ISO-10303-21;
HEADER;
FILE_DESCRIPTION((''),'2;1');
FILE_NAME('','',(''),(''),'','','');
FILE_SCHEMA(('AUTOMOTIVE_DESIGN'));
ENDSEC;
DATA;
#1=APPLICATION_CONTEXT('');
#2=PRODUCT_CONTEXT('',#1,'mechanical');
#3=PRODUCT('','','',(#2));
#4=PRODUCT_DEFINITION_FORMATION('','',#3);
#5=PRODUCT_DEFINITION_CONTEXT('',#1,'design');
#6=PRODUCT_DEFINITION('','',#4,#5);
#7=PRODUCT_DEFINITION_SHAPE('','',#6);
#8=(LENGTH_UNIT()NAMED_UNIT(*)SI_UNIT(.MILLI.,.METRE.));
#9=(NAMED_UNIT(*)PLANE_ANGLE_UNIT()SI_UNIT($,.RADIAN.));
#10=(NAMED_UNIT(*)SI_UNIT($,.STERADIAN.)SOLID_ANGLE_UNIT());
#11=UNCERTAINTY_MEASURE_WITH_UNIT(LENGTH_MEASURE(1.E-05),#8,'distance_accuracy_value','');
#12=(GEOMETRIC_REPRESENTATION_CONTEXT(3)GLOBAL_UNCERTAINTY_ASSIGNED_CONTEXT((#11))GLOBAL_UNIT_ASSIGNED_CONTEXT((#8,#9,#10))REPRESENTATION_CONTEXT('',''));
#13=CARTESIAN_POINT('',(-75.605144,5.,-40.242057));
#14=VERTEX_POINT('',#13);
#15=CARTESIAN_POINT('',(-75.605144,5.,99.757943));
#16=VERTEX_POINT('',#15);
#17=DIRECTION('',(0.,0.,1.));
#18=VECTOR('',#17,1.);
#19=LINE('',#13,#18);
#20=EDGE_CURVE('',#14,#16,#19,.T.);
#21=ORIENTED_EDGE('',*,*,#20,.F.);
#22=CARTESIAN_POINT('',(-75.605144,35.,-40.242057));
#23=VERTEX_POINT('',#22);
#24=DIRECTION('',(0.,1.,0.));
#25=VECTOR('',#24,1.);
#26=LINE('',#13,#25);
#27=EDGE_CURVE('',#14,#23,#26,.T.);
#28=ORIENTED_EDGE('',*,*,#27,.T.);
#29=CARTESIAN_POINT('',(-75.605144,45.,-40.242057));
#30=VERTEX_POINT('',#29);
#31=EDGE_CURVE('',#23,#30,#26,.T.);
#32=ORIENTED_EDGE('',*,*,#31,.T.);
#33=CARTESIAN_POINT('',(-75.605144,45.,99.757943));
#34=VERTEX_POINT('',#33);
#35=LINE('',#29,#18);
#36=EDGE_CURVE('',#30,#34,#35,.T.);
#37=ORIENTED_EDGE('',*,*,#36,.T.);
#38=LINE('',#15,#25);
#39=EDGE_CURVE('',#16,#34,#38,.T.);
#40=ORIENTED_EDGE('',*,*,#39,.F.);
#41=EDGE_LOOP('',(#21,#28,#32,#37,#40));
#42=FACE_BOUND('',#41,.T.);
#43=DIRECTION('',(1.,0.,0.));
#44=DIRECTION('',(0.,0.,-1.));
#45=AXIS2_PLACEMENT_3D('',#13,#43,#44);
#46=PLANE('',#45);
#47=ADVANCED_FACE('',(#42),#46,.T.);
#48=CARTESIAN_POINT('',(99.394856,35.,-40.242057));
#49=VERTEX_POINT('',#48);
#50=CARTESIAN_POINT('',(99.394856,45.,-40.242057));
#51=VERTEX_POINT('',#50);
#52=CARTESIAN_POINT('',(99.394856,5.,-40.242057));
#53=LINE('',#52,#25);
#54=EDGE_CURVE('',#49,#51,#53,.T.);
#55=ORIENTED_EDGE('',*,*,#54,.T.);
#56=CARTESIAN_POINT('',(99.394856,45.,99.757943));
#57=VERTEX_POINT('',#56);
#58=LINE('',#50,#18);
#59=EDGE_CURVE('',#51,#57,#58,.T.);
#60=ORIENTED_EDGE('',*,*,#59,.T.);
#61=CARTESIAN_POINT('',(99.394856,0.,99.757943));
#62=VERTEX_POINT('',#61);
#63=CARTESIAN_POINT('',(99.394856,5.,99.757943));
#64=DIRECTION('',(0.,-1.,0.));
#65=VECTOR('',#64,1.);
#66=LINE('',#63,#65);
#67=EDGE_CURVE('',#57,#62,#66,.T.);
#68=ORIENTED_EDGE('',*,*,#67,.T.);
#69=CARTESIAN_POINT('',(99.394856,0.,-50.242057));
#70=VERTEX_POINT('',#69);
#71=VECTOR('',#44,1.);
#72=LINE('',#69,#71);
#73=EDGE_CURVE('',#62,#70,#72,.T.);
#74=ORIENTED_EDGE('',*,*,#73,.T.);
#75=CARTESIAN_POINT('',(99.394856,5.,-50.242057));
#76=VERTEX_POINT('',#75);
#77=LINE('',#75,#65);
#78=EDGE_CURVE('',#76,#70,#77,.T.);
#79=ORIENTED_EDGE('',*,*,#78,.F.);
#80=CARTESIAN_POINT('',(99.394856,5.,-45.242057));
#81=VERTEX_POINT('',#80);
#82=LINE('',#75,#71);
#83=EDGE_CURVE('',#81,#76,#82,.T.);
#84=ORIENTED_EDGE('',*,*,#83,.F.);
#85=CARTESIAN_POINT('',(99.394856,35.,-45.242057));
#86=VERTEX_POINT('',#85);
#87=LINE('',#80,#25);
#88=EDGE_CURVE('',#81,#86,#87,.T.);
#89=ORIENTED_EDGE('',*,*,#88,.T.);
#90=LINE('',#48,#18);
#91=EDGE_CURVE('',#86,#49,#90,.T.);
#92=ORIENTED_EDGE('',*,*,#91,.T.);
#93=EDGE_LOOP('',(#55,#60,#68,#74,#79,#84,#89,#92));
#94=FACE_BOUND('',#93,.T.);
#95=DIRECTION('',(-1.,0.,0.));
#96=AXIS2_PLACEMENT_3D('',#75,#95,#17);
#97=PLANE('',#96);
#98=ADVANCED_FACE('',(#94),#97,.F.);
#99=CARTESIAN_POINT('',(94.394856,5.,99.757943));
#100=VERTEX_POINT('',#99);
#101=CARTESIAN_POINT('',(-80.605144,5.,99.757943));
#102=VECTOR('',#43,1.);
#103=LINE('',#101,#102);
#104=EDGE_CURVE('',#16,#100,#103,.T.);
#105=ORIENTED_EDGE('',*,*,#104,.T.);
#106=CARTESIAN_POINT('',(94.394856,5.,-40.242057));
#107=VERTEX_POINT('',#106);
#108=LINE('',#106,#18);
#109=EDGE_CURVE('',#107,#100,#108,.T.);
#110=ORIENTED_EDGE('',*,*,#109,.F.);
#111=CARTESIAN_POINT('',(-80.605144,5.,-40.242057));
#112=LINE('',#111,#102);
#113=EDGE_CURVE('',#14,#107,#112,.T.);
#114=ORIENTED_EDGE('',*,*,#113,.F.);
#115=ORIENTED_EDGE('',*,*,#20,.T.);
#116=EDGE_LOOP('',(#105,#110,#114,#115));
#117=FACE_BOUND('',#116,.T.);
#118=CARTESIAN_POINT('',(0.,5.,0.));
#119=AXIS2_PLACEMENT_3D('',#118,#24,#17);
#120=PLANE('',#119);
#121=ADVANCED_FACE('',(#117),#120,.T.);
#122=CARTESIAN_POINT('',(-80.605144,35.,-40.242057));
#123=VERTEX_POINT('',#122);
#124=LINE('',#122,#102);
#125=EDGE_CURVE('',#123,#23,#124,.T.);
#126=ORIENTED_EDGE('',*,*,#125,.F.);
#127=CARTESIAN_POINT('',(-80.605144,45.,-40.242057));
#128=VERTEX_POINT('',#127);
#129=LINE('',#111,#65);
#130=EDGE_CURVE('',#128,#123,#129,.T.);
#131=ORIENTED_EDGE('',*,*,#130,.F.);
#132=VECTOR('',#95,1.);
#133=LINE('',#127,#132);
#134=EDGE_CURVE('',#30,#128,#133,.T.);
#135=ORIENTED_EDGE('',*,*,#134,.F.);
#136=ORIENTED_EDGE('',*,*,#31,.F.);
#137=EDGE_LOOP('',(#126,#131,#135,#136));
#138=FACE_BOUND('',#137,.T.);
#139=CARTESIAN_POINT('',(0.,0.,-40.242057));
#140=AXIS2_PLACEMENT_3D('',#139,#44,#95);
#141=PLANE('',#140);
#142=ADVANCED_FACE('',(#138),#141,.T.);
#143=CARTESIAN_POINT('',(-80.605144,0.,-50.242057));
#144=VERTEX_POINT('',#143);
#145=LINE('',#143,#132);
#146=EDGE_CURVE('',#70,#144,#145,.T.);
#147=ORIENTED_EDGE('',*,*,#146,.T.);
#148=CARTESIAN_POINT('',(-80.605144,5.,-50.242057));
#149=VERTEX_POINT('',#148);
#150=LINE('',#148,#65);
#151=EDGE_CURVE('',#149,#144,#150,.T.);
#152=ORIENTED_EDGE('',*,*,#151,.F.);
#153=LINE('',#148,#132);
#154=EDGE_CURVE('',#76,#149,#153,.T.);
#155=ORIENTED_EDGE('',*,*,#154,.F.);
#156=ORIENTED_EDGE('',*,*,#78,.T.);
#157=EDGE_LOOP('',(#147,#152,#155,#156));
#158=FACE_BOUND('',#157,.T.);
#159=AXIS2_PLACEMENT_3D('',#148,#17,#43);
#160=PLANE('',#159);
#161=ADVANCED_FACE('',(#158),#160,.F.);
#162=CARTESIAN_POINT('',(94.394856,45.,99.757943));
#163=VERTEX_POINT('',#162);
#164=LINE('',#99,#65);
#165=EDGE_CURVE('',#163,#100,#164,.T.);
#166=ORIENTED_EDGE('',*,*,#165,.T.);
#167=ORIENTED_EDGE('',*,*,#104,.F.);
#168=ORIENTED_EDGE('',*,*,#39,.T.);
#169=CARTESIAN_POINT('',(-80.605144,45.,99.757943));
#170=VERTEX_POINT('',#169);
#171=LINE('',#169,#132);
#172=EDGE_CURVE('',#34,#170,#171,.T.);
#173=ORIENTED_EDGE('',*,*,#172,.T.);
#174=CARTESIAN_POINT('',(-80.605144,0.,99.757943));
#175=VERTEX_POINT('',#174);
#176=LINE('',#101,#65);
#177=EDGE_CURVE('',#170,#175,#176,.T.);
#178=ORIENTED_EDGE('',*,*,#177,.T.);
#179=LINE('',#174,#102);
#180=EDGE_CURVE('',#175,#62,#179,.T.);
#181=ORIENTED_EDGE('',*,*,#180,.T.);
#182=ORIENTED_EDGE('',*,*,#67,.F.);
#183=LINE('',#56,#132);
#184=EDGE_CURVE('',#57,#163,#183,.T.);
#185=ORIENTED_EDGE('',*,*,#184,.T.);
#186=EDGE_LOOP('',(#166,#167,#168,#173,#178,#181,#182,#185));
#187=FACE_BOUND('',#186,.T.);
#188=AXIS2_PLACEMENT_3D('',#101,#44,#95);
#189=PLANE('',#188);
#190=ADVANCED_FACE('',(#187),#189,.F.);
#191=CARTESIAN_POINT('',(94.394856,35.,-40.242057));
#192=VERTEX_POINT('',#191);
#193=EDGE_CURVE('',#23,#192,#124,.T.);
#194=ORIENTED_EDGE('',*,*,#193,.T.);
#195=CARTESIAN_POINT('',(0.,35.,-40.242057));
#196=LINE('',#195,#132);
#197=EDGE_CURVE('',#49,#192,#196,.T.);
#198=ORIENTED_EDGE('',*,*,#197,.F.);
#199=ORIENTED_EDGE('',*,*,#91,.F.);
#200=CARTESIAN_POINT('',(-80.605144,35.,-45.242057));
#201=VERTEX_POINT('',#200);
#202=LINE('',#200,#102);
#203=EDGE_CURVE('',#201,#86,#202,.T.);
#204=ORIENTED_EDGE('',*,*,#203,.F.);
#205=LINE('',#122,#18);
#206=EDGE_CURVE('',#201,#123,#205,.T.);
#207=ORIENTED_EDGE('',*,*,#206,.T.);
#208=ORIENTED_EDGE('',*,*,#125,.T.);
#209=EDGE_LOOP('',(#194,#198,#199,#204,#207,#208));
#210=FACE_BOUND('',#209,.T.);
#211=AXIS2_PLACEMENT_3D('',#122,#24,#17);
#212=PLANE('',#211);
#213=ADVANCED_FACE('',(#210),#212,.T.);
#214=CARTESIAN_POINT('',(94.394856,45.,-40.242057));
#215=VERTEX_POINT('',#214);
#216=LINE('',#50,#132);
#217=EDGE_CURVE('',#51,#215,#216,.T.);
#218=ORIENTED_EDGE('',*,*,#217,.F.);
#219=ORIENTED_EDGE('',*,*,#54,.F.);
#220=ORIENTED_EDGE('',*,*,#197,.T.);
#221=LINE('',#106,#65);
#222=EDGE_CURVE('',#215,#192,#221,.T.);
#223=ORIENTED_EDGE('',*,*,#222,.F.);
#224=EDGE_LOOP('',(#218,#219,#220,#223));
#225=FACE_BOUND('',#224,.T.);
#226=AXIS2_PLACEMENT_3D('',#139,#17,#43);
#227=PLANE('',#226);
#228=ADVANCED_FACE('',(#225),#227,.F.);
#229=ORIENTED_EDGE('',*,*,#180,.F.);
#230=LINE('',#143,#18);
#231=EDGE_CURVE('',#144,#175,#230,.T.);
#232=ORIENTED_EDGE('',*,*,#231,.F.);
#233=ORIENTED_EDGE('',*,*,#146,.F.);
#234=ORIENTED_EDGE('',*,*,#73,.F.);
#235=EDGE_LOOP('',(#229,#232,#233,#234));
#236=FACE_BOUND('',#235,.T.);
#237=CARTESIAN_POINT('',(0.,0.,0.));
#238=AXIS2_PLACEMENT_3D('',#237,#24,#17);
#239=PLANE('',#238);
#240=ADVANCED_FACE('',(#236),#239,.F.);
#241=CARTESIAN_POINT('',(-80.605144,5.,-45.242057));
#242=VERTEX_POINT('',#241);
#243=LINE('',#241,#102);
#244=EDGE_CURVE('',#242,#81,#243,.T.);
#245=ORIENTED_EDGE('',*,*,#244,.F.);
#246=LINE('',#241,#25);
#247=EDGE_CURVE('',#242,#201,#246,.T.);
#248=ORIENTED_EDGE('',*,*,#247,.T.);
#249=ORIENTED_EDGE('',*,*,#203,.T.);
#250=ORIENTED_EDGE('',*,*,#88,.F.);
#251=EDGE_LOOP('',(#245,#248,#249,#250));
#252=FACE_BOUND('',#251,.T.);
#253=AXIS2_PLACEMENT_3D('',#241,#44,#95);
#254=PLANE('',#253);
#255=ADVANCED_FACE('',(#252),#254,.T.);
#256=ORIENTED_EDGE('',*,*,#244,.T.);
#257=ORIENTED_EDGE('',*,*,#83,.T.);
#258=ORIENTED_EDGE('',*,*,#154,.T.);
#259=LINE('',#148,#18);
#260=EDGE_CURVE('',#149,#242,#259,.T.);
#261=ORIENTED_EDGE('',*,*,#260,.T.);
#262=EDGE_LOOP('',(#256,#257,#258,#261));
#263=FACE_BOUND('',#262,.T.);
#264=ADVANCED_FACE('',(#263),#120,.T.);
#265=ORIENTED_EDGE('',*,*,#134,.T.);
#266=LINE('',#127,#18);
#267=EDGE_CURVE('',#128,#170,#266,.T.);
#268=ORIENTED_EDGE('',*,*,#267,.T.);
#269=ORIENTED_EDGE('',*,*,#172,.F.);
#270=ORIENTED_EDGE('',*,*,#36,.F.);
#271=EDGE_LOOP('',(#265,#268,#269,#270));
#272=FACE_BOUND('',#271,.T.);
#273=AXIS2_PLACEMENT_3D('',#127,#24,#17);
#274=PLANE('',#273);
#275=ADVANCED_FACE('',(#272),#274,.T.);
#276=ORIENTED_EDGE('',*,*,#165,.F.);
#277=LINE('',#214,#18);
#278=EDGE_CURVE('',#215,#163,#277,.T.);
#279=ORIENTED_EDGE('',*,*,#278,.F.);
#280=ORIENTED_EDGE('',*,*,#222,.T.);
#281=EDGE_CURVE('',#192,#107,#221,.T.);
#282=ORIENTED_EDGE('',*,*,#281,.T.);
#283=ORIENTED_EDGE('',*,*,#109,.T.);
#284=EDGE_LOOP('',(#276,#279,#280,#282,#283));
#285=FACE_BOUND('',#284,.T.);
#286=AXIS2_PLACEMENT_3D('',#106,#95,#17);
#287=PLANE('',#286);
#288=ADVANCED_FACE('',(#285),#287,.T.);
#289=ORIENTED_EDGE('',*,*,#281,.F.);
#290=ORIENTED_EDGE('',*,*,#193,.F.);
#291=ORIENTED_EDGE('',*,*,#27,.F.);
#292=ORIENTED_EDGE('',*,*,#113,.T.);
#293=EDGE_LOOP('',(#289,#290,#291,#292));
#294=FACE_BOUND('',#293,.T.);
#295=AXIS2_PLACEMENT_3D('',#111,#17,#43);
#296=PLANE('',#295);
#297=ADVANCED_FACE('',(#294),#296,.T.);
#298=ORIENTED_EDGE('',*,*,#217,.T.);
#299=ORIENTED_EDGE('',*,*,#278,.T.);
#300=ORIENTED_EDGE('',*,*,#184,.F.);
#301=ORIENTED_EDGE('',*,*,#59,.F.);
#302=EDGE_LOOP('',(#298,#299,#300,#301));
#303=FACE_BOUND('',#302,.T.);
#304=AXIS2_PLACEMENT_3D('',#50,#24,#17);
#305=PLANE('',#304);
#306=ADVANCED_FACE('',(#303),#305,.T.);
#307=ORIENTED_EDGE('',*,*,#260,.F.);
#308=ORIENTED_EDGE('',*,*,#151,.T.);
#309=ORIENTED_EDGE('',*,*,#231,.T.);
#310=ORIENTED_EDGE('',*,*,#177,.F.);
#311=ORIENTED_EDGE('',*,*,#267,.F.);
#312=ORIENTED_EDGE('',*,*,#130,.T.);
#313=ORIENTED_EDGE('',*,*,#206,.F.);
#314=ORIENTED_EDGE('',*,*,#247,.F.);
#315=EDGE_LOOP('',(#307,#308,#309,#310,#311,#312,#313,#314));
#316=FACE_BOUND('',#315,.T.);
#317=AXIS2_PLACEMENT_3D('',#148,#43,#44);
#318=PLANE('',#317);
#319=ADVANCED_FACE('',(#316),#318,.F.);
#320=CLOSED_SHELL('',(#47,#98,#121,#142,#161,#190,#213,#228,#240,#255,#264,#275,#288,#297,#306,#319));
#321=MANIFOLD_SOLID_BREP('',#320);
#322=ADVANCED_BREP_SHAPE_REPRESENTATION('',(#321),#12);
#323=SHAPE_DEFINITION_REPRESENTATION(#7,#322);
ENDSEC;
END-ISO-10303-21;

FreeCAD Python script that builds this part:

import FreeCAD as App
import Part
import Sketcher
Q = App.Units.Quantity


def add_polygon(sketch, points):
    """Adds a closed chain of lines whose ends are joined by coincident constraints."""
    first, n = sketch.GeometryCount, len(points)
    for a, b in zip(points, points[1:] + points[:1]):
        sketch.addGeometry(Part.LineSegment(App.Vector(*a, 0), App.Vector(*b, 0)), False)
    for i in range(n):
        sketch.addConstraint(Sketcher.Constraint("Coincident", first + i, 2, first + (i + 1) % n, 1))

doc = App.newDocument("Part")
body = doc.addObject("PartDesign::Body", "Body")

# Sketch on XZ plane
sketch1 = body.newObject("Sketcher::SketchObject", "Sketch")
sketch1.AttachmentSupport = (doc.getObject("XZ_Plane"), [""])
sketch1.MapMode = "FlatFace"
add_polygon(sketch1, [(-81, -50), (-81, 100), (99, 100), (99, -50)])  # lines 0-3
sketch1.addConstraint([
    Sketcher.Constraint("Vertical", 0),
    Sketcher.Constraint("Horizontal", 1),
    Sketcher.Constraint("Vertical", 2),
    Sketcher.Constraint("Horizontal", 3),
    Sketcher.Constraint("DistanceX", 1, 1, 1, 2, Q("180 mm")),
    Sketcher.Constraint("DistanceY", 0, 1, 0, 2, Q("150 mm")),
    Sketcher.Constraint("DistanceX", 0, 2, -1, 1, Q("80.605144 mm")),
    Sketcher.Constraint("DistanceY", -1, 1, 0, 2, Q("99.757943 mm")),
])
pad1 = body.newObject("PartDesign::Pad", "Pad")
pad1.Profile = sketch1
pad1.Length = 5
pad1.Reversed = True

# Sketch on XY plane
sketch2 = body.newObject("Sketcher::SketchObject", "Sketch001")
sketch2.AttachmentSupport = (doc.getObject("XY_Plane"), [""])
sketch2.MapMode = "FlatFace"
sketch2.AttachmentOffset = App.Placement(App.Vector(0, 0, 99.757943), App.Rotation())
add_polygon(sketch2, [(-81, 45), (-81, 5), (-76, 5), (-76, 45)])  # lines 0-3
add_polygon(sketch2, [(94, 45), (94, 5), (99, 5), (99, 45)])  # lines 4-7
sketch2.addConstraint([
    Sketcher.Constraint("Vertical", 0),
    Sketcher.Constraint("Horizontal", 1),
    Sketcher.Constraint("Vertical", 2),
    Sketcher.Constraint("Horizontal", 3),
    Sketcher.Constraint("Vertical", 4),
    Sketcher.Constraint("Horizontal", 5),
    Sketcher.Constraint("Vertical", 6),
    Sketcher.Constraint("Horizontal", 7),
    Sketcher.Constraint("Horizontal", 1, 2, 4, 2),
    Sketcher.Constraint("Horizontal", 3, 2, 6, 2),
    Sketcher.Constraint("Equal", 3, 5),
    Sketcher.Constraint("DistanceX", 1, 1, 1, 2, Q("5 mm")),
    Sketcher.Constraint("DistanceY", 0, 2, 0, 1, Q("40 mm")),
    Sketcher.Constraint("DistanceY", -1, 1, 0, 2, Q("5 mm")),
    Sketcher.Constraint("DistanceX", 1, 2, 4, 2, Q("170 mm")),
    Sketcher.Constraint("DistanceX", 0, 2, -1, 1, Q("80.605144 mm")),
])
pad2 = body.newObject("PartDesign::Pad", "Pad001")
pad2.Profile = sketch2
pad2.Length = 140
pad2.Reversed = True

# Sketch on YZ plane
sketch3 = body.newObject("Sketcher::SketchObject", "Sketch002")
sketch3.AttachmentSupport = (doc.getObject("YZ_Plane"), [""])
sketch3.MapMode = "FlatFace"
sketch3.AttachmentOffset = App.Placement(App.Vector(0, 0, 99.394856), App.Rotation())
add_polygon(sketch3, [(35, -40), (5, -40), (5, -45), (35, -45)])  # lines 0-3
sketch3.addConstraint([
    Sketcher.Constraint("Horizontal", 0),
    Sketcher.Constraint("Vertical", 1),
    Sketcher.Constraint("Horizontal", 2),
    Sketcher.Constraint("Vertical", 3),
    Sketcher.Constraint("DistanceX", 0, 2, 0, 1, Q("30 mm")),
    Sketcher.Constraint("DistanceY", 1, 2, 1, 1, Q("5 mm")),
    Sketcher.Constraint("DistanceX", -1, 1, 0, 2, Q("5 mm")),
    Sketcher.Constraint("DistanceY", 0, 2, -1, 1, Q("40.242057 mm")),
])
pad3 = body.newObject("PartDesign::Pad", "Pad002")
pad3.Profile = sketch3
pad3.Length = 180
pad3.Reversed = True

doc.recompute()
